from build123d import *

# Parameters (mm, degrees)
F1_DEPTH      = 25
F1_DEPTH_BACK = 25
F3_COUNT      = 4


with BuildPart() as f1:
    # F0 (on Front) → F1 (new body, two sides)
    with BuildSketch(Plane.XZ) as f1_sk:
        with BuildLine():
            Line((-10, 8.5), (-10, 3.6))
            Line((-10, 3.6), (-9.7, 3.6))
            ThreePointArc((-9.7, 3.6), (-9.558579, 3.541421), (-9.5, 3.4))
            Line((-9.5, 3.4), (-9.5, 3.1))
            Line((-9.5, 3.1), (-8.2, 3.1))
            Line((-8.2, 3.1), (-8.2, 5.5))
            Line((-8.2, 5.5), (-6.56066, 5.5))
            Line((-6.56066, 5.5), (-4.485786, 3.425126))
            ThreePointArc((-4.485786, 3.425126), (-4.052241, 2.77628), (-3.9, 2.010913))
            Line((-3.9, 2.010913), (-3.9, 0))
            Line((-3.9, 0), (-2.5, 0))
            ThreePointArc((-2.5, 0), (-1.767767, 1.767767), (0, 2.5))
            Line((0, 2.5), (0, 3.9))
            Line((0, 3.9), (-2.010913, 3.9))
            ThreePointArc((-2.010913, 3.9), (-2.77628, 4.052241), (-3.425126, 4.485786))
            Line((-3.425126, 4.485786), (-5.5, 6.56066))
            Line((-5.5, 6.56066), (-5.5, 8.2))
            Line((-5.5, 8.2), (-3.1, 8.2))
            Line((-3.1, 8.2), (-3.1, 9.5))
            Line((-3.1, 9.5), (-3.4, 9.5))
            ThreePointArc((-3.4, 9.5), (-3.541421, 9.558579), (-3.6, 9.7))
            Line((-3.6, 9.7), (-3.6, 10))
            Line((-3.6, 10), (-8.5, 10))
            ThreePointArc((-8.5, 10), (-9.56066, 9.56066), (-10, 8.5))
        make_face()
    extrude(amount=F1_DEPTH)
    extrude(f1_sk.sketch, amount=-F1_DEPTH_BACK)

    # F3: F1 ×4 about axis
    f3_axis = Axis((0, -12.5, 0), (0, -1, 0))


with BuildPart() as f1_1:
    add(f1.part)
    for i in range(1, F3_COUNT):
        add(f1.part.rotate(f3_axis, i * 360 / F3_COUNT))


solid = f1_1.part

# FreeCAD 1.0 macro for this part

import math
import FreeCAD as App
import Part
import Sketcher

V = App.Vector
Q = App.Units.Quantity

doc = App.newDocument("Part")
body = doc.addObject("PartDesign::Body", "Body")

sketch1 = doc.addObject("Sketcher::SketchObject", "Sketch")
body.addObject(sketch1)
sketch1.AttachmentSupport = (doc.XZ_Plane, [""])
sketch1.MapMode = "FlatFace"
sketch1.addGeometry([
    Part.LineSegment(V(-10, 8.5, 0), V(-10, 3.6, 0)),
    Part.LineSegment(V(-10, 3.6, 0), V(-9.7, 3.6, 0)),
    Part.ArcOfCircle(Part.Circle(V(-9.700001, 3.399999, 0), V(0, 0, 1), 0.200001), math.radians(0.000348), math.radians(89.999652)),
    Part.LineSegment(V(-9.5, 3.4, 0), V(-9.5, 3.1, 0)),
    Part.LineSegment(V(-9.5, 3.1, 0), V(-8.2, 3.1, 0)),
    Part.LineSegment(V(-8.2, 3.1, 0), V(-8.2, 5.5, 0)),
    Part.LineSegment(V(-8.2, 5.5, 0), V(-6.56066, 5.5, 0)),
    Part.LineSegment(V(-6.56066, 5.5, 0), V(-4.485786, 3.425126, 0)),
    Part.ArcOfCircle(Part.Circle(V(-5.9, 2.010913, 0), V(0, 0, 1), 2), math.radians(-0.000002), math.radians(44.999988)),
    Part.LineSegment(V(-3.9, 2.010913, 0), V(-3.9, 0, 0)),
    Part.LineSegment(V(-3.9, 0, 0), V(-2.5, 0, 0)),
    Part.ArcOfCircle(Part.Circle(V(0, 0, 0), V(0, 0, 1), 2.5), math.radians(89.999996), math.radians(180.000004)),
    Part.LineSegment(V(0, 2.5, 0), V(0, 3.9, 0)),
    Part.LineSegment(V(0, 3.9, 0), V(-2.010913, 3.9, 0)),
    Part.ArcOfCircle(Part.Circle(V(-2.010913, 5.9, 0), V(0, 0, 1), 2), math.radians(-134.999988), math.radians(-89.999998)),
    Part.LineSegment(V(-3.425126, 4.485786, 0), V(-5.5, 6.56066, 0)),
    Part.LineSegment(V(-5.5, 6.56066, 0), V(-5.5, 8.2, 0)),
    Part.LineSegment(V(-5.5, 8.2, 0), V(-3.1, 8.2, 0)),
    Part.LineSegment(V(-3.1, 8.2, 0), V(-3.1, 9.5, 0)),
    Part.LineSegment(V(-3.1, 9.5, 0), V(-3.4, 9.5, 0)),
    Part.ArcOfCircle(Part.Circle(V(-3.399999, 9.700001, 0), V(0, 0, 1), 0.200001), math.radians(-179.999652), math.radians(-90.000348)),
    Part.LineSegment(V(-3.6, 9.7, 0), V(-3.6, 10, 0)),
    Part.LineSegment(V(-3.6, 10, 0), V(-8.5, 10, 0)),
    Part.ArcOfCircle(Part.Circle(V(-8.499999, 8.499999, 0), V(0, 0, 1), 1.500001), math.radians(90.000022), math.radians(179.999978)),
], False)
sketch1.addConstraint([
    Sketcher.Constraint("Coincident", 0, 2, 1, 1),
    Sketcher.Constraint("Coincident", 1, 2, 2, 2),
    Sketcher.Constraint("Coincident", 2, 1, 3, 1),
    Sketcher.Constraint("Coincident", 3, 2, 4, 1),
    Sketcher.Constraint("Coincident", 4, 2, 5, 1),
    Sketcher.Constraint("Coincident", 5, 2, 6, 1),
    Sketcher.Constraint("Coincident", 6, 2, 7, 1),
    Sketcher.Constraint("Tangent", 7, 2, 8, 2),
    Sketcher.Constraint("Tangent", 8, 1, 9, 1),
    Sketcher.Constraint("Coincident", 9, 2, 10, 1),
    Sketcher.Constraint("Coincident", 10, 2, 11, 2),
    Sketcher.Constraint("Coincident", 11, 1, 12, 1),
    Sketcher.Constraint("Coincident", 12, 2, 13, 1),
    Sketcher.Constraint("Tangent", 13, 2, 14, 2),
    Sketcher.Constraint("Tangent", 14, 1, 15, 1),
    Sketcher.Constraint("Coincident", 15, 2, 16, 1),
    Sketcher.Constraint("Coincident", 16, 2, 17, 1),
    Sketcher.Constraint("Coincident", 17, 2, 18, 1),
    Sketcher.Constraint("Coincident", 18, 2, 19, 1),
    Sketcher.Constraint("Coincident", 19, 2, 20, 2),
    Sketcher.Constraint("Coincident", 20, 1, 21, 1),
    Sketcher.Constraint("Coincident", 21, 2, 22, 1),
    Sketcher.Constraint("Tangent", 22, 2, 23, 1),
    Sketcher.Constraint("Tangent", 23, 2, 0, 1),
    Sketcher.Constraint("Vertical", 0),
    Sketcher.Constraint("Horizontal", 1),
    Sketcher.Constraint("Vertical", 3),
    Sketcher.Constraint("Horizontal", 4),
    Sketcher.Constraint("Vertical", 5),
    Sketcher.Constraint("Horizontal", 6),
    Sketcher.Constraint("Vertical", 9),
    Sketcher.Constraint("Horizontal", 10),
    Sketcher.Constraint("Vertical", 12),
    Sketcher.Constraint("Horizontal", 13),
    Sketcher.Constraint("Vertical", 16),
    Sketcher.Constraint("Horizontal", 17),
    Sketcher.Constraint("Vertical", 18),
    Sketcher.Constraint("Horizontal", 19),
    Sketcher.Constraint("Vertical", 21),
    Sketcher.Constraint("Horizontal", 22),
    Sketcher.Constraint("Coincident", 11, 3, -1, 1),
    Sketcher.Constraint("Equal", 8, 14),
    Sketcher.Constraint("Equal", 2, 20),
    Sketcher.Constraint("PointOnObject", 9, 2, -1),
    Sketcher.Constraint("PointOnObject", 11, 1, -2),
    Sketcher.Constraint("Parallel", 7, 15),
    Sketcher.Constraint("Vertical", 2, 3, 1, 2),
    Sketcher.Constraint("Vertical", 20, 3, 19, 2),
    Sketcher.Constraint("Equal", 1, 19),
    Sketcher.Constraint("Equal", 22, 0),
    Sketcher.Constraint("Equal", 19, 3),
    Sketcher.Constraint("Equal", 17, 5),
    Sketcher.Constraint("Equal", 13, 9),
    Sketcher.Constraint("Equal", 10, 12),
    Sketcher.Constraint("Equal", 6, 16),
    Sketcher.Constraint("Equal", 4, 18),
    Sketcher.Constraint("Equal", 3, 21),
    Sketcher.Constraint("Equal", 7, 15),
    Sketcher.Constraint("Radius", 8, 2.0),
    Sketcher.Constraint("Radius", 2, 0.200001),
    Sketcher.Constraint("Radius", 11, 2.5),
    Sketcher.Constraint("Radius", 23, 1.500001),
    Sketcher.Constraint("Angle", 7, Q("-45 deg")),
    Sketcher.Constraint("DistanceX", 1, 1, 1, 2, 0.3),
    Sketcher.Constraint("DistanceX", 4, 1, 4, 2, 1.3),
    Sketcher.Constraint("DistanceX", 10, 1, 10, 2, 1.4),
    Sketcher.Constraint("DistanceX", 17, 1, 17, 2, 2.4),
    Sketcher.Constraint("DistanceX", 22, 2, 22, 1, 4.9),
    Sketcher.Constraint("DistanceX", 0, 2, -1, 1, 10.0),
    Sketcher.Constraint("DistanceY", -1, 1, 21, 2, 10.0),
    Sketcher.Constraint("DistanceX", 6, 1, 6, 2, 1.63934),
])
pad1 = doc.addObject("PartDesign::Pad", "Pad")
body.addObject(pad1)
pad1.Profile = sketch1
pad1.Type = "TwoLengths"
pad1.Length = 25
pad1.Length2 = 25
body2 = doc.addObject("PartDesign::Body", "Body001")
doc.recompute()

body2.BaseFeature = body
doc.recompute()

body3 = doc.addObject("PartDesign::Body", "Body002")
body3.BaseFeature = body
body3.Placement = App.Placement(V(0, 0, 0), App.Rotation(V(0, -1, 0), 90))
boolean = doc.addObject("PartDesign::Boolean", "Boolean")
body2.addObject(boolean)
boolean.Type = "Fuse"
boolean.addObjects([body3])
doc.recompute()

body4 = doc.addObject("PartDesign::Body", "Body003")
body4.BaseFeature = body
body4.Placement = App.Placement(V(0, 0, 0), App.Rotation(V(0, -1, 0), 180))
boolean2 = doc.addObject("PartDesign::Boolean", "Boolean001")
body2.addObject(boolean2)
boolean2.Type = "Fuse"
boolean2.addObjects([body4])
doc.recompute()

body.Placement = App.Placement(V(0, 0, 0), App.Rotation(V(0, -1, 0), 270))
boolean3 = doc.addObject("PartDesign::Boolean", "Boolean002")
body2.addObject(boolean3)
boolean3.Type = "Fuse"
boolean3.addObjects([body])

doc.recompute()
